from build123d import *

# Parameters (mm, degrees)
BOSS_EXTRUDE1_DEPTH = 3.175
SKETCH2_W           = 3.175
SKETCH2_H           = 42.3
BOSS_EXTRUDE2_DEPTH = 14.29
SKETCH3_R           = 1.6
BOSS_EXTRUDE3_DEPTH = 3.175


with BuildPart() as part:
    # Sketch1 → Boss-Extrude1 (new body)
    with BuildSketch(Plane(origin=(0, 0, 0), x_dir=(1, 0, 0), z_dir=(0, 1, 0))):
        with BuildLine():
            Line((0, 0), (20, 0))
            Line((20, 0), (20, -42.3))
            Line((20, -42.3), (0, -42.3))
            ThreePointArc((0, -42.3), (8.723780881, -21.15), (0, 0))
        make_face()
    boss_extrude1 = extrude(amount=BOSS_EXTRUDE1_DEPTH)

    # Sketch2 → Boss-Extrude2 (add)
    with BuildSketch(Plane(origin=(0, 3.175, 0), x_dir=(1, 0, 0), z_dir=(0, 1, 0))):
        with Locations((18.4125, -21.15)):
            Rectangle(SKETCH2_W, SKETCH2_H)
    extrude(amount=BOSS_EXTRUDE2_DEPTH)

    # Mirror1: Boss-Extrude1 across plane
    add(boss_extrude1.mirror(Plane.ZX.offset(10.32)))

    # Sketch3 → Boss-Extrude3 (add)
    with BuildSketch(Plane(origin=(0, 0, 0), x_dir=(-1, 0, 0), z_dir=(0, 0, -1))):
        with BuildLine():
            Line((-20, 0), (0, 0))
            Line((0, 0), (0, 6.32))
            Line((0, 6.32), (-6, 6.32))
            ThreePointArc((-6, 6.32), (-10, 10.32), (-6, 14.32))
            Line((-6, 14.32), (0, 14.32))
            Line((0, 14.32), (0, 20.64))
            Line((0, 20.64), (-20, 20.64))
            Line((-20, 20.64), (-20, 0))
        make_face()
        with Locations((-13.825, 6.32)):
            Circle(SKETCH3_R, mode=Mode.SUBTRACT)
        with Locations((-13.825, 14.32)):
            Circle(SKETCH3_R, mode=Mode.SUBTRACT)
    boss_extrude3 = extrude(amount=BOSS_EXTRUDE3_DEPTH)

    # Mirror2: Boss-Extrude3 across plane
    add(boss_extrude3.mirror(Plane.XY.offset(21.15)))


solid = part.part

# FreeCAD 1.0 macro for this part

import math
import FreeCAD as App
import Part
import Sketcher

V = App.Vector
Q = App.Units.Quantity

doc = App.newDocument("Part")
params = doc.addObject("Spreadsheet::Sheet", "Params")
for row, (alias, value) in enumerate([
    ("sketch1_radius", "30 mm"),
    ("sketch1_width", "20 mm"),
    ("sketch1_height", "42.3 mm"),
    ("pad1_length", "3.175 mm"),
    ("sketch2_height", "42.3 mm"),
    ("pad2_length", "14.29 mm"),
    ("sketch3_radius", "4 mm"),
    ("sketch3_diameter", "3.2 mm"),
    ("sketch3_width", "20 mm"),
    ("sketch3_width2", "6 mm"),
    ("sketch3_height", "6.32 mm"),
    ("pad3_length", "3.175 mm"),
], start=1):
    params.set(f"A{row}", alias)
    params.set(f"B{row}", "=" + value)
    params.setAlias(f"B{row}", alias)

body = doc.addObject("PartDesign::Body", "Body")

sketch1 = doc.addObject("Sketcher::SketchObject", "Sketch")
body.addObject(sketch1)
sketch1.AttachmentSupport = (doc.XZ_Plane, [""])
sketch1.MapMode = "FlatFace"
sketch1.addGeometry([
    Part.LineSegment(V(20, 0, 0), V(0, 0, 0)),
    Part.ArcOfCircle(Part.Circle(V(-21, 21, 0), V(0, 0, 1), 30), math.radians(-45), math.radians(45)),
    Part.LineSegment(V(0, 42, 0), V(20, 42, 0)),
    Part.LineSegment(V(20, 42, 0), V(20, 0, 0)),
], False)
sketch1.addConstraint([
    Sketcher.Constraint("Coincident", 0, 2, 1, 1),
    Sketcher.Constraint("Coincident", 1, 2, 2, 1),
    Sketcher.Constraint("Coincident", 2, 2, 3, 1),
    Sketcher.Constraint("Coincident", 3, 2, 0, 1),
    Sketcher.Constraint("Horizontal", 0),
    Sketcher.Constraint("Horizontal", 2),
    Sketcher.Constraint("Vertical", 3),
    Sketcher.Constraint("Coincident", 0, 2, -1, 1),
    Sketcher.Constraint("PointOnObject", 1, 2, -2),
    Sketcher.Constraint("Radius", 1, Q("30 mm")),
    Sketcher.Constraint("DistanceX", 0, 2, 0, 1, Q("20 mm")),
    Sketcher.Constraint("DistanceY", 3, 2, 3, 1, Q("42.3 mm")),
])
sketch1.setExpression("Constraints[9]", "Params.sketch1_radius")
sketch1.setExpression("Constraints[10]", "Params.sketch1_width")
sketch1.setExpression("Constraints[11]", "Params.sketch1_height")
pad1 = doc.addObject("PartDesign::Pad", "Pad")
body.addObject(pad1)
pad1.Profile = sketch1
pad1.setExpression("Length", "Params.pad1_length")
pad1.Reversed = True

sketch2 = doc.addObject("Sketcher::SketchObject", "Sketch001")
body.addObject(sketch2)
sketch2.AttachmentSupport = (doc.XZ_Plane, [""])
sketch2.MapMode = "FlatFace"
sketch2.AttachmentOffset = App.Placement(V(0, 0, -3.175), App.Rotation())
sketch2.addGeometry([
    Part.LineSegment(V(16.8, 0, 0), V(16.8, 42.3, 0)),
    Part.LineSegment(V(16.8, 42.3, 0), V(20, 42.3, 0)),
    Part.LineSegment(V(20, 42.3, 0), V(20, 0, 0)),
    Part.LineSegment(V(20, 0, 0), V(16.8, 0, 0)),
], False)
sketch2.addConstraint([
    Sketcher.Constraint("Coincident", 0, 2, 1, 1),
    Sketcher.Constraint("Coincident", 1, 2, 2, 1),
    Sketcher.Constraint("Coincident", 2, 2, 3, 1),
    Sketcher.Constraint("Coincident", 3, 2, 0, 1),
    Sketcher.Constraint("Vertical", 0),
    Sketcher.Constraint("Horizontal", 1),
    Sketcher.Constraint("Vertical", 2),
    Sketcher.Constraint("Horizontal", 3),
    Sketcher.Constraint("PointOnObject", 2, 2, -1),
    Sketcher.Constraint("DistanceY", 0, 1, 0, 2, Q("42.3 mm")),
    Sketcher.Constraint("DistanceX", -1, 1, 1, 2, Q("20 mm")),
    Sketcher.Constraint("DistanceX", 1, 1, 1, 2, Q("3.175 mm")),
])
sketch2.setExpression("Constraints[9]", "Params.sketch2_height")
pad2 = doc.addObject("PartDesign::Pad", "Pad001")
body.addObject(pad2)
pad2.Profile = sketch2
pad2.setExpression("Length", "Params.pad2_length")
pad2.Reversed = True
doc.recompute()

datumplane = doc.addObject("PartDesign::Plane", "DatumPlane")
body.addObject(datumplane)
datumplane.AttachmentSupport = (doc.XZ_Plane, [""])
datumplane.MapMode = "FlatFace"
datumplane.AttachmentOffset = App.Placement(V(0, 0, -10.32), App.Rotation())
mirrored = doc.addObject("PartDesign::Mirrored", "Mirrored")
body.addObject(mirrored)
mirrored.Originals = [pad1]
mirrored.MirrorPlane = (datumplane, [""])
body.Tip = mirrored

sketch3 = doc.addObject("Sketcher::SketchObject", "Sketch002")
body.addObject(sketch3)
sketch3.AttachmentSupport = (doc.XY_Plane, [""])
sketch3.MapMode = "FlatFace"
sketch3.addGeometry([
    Part.LineSegment(V(20, 0, 0), V(0, 0, 0)),
    Part.LineSegment(V(0, 0, 0), V(0, 6.3, 0)),
    Part.LineSegment(V(0, 6.3, 0), V(6, 6.3, 0)),
    Part.ArcOfCircle(Part.Circle(V(6, 10.3, 0), V(0, 0, 1), 4), math.radians(-90), math.radians(90)),
    Part.LineSegment(V(6, 14.3, 0), V(0, 14.3, 0)),
    Part.LineSegment(V(0, 14.3, 0), V(0, 20.6, 0)),
    Part.LineSegment(V(0, 20.6, 0), V(20, 20.6, 0)),
    Part.LineSegment(V(20, 20.6, 0), V(20, 0, 0)),
    Part.Circle(V(13.8, 6.3, 0), V(0, 0, 1), 1.6),
    Part.Circle(V(13.8, 14.3, 0), V(0, 0, 1), 1.6),
], False)
sketch3.addConstraint([
    Sketcher.Constraint("Coincident", 0, 2, 1, 1),
    Sketcher.Constraint("Coincident", 1, 2, 2, 1),
    Sketcher.Constraint("Tangent", 2, 2, 3, 1),
    Sketcher.Constraint("Tangent", 3, 2, 4, 1),
    Sketcher.Constraint("Coincident", 4, 2, 5, 1),
    Sketcher.Constraint("Coincident", 5, 2, 6, 1),
    Sketcher.Constraint("Coincident", 6, 2, 7, 1),
    Sketcher.Constraint("Coincident", 7, 2, 0, 1),
    Sketcher.Constraint("Horizontal", 0),
    Sketcher.Constraint("Vertical", 1),
    Sketcher.Constraint("Horizontal", 2),
    Sketcher.Constraint("Horizontal", 4),
    Sketcher.Constraint("Vertical", 5),
    Sketcher.Constraint("Horizontal", 6),
    Sketcher.Constraint("Vertical", 7),
    Sketcher.Constraint("Coincident", 0, 2, -1, 1),
    Sketcher.Constraint("Equal", 8, 9),
    Sketcher.Constraint("PointOnObject", 4, 2, -2),
    Sketcher.Constraint("Horizontal", 8, 3, 1, 2),
    Sketcher.Constraint("Horizontal", 9, 3, 3, 2),
    Sketcher.Constraint("Vertical", 8, 3, 9, 3),
    Sketcher.Constraint("Equal", 1, 5),
    Sketcher.Constraint("Radius", 3, Q("4 mm")),
    Sketcher.Constraint("Diameter", 8, Q("3.2 mm")),
    Sketcher.Constraint("DistanceX", 0, 2, 0, 1, Q("20 mm")),
    Sketcher.Constraint("DistanceX", 2, 1, 2, 2, Q("6 mm")),
    Sketcher.Constraint("DistanceY", 1, 1, 1, 2, Q("6.32 mm")),
    Sketcher.Constraint("DistanceX", -1, 1, 8, 3, Q("13.825 mm")),
])
sketch3.setExpression("Constraints[22]", "Params.sketch3_radius")
sketch3.setExpression("Constraints[23]", "Params.sketch3_diameter")
sketch3.setExpression("Constraints[24]", "Params.sketch3_width")
sketch3.setExpression("Constraints[25]", "Params.sketch3_width2")
sketch3.setExpression("Constraints[26]", "Params.sketch3_height")
pad3 = doc.addObject("PartDesign::Pad", "Pad002")
body.addObject(pad3)
pad3.Profile = sketch3
pad3.setExpression("Length", "Params.pad3_length")
pad3.Reversed = True
doc.recompute()

datumplane2 = doc.addObject("PartDesign::Plane", "DatumPlane001")
body.addObject(datumplane2)
datumplane2.AttachmentSupport = (doc.XY_Plane, [""])
datumplane2.MapMode = "FlatFace"
datumplane2.AttachmentOffset = App.Placement(V(0, 0, 21.15), App.Rotation())
mirrored2 = doc.addObject("PartDesign::Mirrored", "Mirrored001")
body.addObject(mirrored2)
mirrored2.Originals = [pad3]
mirrored2.MirrorPlane = (datumplane2, [""])
body.Tip = mirrored2

doc.recompute()
